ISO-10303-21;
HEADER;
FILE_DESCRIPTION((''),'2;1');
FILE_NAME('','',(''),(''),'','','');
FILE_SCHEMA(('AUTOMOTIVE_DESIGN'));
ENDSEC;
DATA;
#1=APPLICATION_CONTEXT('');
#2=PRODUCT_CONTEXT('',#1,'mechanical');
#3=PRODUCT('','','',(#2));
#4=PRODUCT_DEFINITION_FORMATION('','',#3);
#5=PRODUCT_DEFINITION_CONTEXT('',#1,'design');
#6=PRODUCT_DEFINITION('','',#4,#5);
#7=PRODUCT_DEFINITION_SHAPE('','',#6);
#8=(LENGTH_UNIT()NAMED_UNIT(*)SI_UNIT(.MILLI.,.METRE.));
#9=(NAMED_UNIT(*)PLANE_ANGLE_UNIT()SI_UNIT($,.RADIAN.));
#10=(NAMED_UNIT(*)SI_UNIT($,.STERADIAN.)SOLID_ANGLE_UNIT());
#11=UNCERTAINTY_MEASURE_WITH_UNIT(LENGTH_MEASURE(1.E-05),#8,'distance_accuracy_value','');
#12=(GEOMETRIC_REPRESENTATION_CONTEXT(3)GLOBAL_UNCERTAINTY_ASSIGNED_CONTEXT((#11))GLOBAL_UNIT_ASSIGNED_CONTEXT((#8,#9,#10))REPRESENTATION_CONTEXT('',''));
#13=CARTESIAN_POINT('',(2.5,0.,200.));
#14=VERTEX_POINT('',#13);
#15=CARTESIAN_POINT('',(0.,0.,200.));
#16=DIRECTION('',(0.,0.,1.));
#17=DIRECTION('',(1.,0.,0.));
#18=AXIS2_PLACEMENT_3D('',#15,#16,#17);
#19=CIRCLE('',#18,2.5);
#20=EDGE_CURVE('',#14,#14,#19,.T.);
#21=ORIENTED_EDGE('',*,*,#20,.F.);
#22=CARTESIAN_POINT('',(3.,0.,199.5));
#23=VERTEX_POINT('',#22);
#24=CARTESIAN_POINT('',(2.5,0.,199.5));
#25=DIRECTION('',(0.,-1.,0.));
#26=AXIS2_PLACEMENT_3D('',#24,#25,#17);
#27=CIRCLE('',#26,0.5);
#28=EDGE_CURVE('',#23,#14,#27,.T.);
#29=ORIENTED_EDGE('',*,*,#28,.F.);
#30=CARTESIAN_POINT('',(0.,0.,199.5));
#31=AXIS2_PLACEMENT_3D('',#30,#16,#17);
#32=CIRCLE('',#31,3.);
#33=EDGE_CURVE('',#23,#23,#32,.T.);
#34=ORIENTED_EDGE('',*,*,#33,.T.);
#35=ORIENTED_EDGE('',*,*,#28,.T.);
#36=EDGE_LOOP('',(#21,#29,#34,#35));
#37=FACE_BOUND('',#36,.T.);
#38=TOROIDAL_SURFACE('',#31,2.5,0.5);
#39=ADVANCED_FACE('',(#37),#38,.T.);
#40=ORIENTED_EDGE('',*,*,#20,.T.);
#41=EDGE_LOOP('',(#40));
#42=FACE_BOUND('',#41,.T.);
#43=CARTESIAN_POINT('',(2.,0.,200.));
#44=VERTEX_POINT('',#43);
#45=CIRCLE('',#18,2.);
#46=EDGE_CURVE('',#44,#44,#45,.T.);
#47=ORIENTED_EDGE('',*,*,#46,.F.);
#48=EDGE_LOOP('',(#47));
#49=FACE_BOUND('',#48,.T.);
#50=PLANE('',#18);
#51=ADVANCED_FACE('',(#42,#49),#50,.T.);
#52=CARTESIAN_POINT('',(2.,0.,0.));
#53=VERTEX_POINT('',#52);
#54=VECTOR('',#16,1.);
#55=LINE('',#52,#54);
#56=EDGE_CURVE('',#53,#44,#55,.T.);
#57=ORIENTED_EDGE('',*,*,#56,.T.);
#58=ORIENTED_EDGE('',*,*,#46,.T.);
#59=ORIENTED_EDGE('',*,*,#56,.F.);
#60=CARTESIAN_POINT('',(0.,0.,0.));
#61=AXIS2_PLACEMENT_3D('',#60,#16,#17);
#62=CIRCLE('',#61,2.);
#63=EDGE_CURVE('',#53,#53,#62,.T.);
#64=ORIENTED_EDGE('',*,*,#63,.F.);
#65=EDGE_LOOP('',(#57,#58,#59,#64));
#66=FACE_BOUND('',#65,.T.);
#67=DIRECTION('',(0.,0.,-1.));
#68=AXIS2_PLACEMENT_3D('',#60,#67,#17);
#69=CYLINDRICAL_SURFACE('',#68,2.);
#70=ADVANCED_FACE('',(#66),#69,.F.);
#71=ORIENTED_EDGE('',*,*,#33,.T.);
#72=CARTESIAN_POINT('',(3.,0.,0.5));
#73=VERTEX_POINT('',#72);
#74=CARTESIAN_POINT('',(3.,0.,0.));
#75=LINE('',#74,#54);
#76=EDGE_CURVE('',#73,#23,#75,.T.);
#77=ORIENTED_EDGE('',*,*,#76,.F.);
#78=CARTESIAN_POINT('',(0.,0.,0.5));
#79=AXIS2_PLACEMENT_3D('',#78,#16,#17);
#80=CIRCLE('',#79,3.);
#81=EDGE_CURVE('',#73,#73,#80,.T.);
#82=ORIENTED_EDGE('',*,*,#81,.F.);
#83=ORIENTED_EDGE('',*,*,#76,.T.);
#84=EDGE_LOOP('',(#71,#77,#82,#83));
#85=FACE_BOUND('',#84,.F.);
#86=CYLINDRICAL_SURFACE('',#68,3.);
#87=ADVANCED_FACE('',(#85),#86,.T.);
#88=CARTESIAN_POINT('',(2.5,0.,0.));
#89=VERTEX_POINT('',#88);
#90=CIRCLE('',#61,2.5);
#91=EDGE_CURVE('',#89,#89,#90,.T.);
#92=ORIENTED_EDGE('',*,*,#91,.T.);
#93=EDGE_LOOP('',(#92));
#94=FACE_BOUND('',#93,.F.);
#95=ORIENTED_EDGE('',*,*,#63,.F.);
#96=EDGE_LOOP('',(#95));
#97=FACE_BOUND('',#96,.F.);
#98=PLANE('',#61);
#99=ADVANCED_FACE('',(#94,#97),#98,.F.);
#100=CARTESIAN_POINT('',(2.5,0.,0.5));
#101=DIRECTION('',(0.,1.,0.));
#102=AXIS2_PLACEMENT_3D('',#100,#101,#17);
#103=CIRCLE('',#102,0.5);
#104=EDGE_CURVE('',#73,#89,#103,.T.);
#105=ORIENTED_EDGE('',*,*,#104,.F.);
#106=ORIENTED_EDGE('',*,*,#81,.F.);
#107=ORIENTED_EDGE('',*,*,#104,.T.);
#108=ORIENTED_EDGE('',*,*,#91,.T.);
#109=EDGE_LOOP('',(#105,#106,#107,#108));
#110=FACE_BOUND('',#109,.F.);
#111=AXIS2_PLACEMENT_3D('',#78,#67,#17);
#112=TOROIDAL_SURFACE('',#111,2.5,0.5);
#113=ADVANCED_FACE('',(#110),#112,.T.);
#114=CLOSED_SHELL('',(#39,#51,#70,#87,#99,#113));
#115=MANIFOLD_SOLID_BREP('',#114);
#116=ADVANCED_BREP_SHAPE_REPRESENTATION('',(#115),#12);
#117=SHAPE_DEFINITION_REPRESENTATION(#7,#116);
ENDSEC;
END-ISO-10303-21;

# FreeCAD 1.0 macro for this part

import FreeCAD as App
import Part
import Sketcher
from FreeCAD import Vector
Q = App.Units.Quantity


def edges_at(feature, points):
    """Names of the edges that pass closest to the given points."""
    edges = feature.Shape.Edges
    near = lambda p: min(range(len(edges)), key=lambda i: edges[i].distToShape(Part.Vertex(*p))[0])
    return sorted({f"Edge{near(p) + 1}" for p in points})

doc = App.newDocument("Part")
params = doc.addObject("Spreadsheet::Sheet", "Params")
for row, (alias, value) in enumerate([
    ("sketch1_diameter", "6 mm"),
    ("sketch1_diameter2", "4 mm"),
    ("pad1_length", "200 mm"),
    ("fillet_radius", "0.5 mm"),
], start=1):
    params.set(f"A{row}", alias)
    params.set(f"B{row}", "=" + value)
    params.setAlias(f"B{row}", alias)

body = doc.addObject("PartDesign::Body", "Body")

# Sketch on XY plane
sketch1 = doc.addObject("Sketcher::SketchObject", "Sketch")
body.addObject(sketch1)
sketch1.AttachmentSupport = (doc.XY_Plane, [""])
sketch1.MapMode = "FlatFace"
sketch1.addGeometry([
    Part.Circle(Vector(0, 0, 0), Vector(0, 0, 1), 3),
    Part.Circle(Vector(0, 0, 0), Vector(0, 0, 1), 2),
], False)
sketch1.addConstraint([
    Sketcher.Constraint("Coincident", 0, 3, -1, 1),
    Sketcher.Constraint("Coincident", 1, 3, -1, 1),
    Sketcher.Constraint("Diameter", 0, Q("6 mm")),
    Sketcher.Constraint("Diameter", 1, Q("4 mm")),
])
sketch1.setExpression("Constraints[2]", "Params.sketch1_diameter")
sketch1.setExpression("Constraints[3]", "Params.sketch1_diameter2")
pad1 = doc.addObject("PartDesign::Pad", "Pad")
body.addObject(pad1)
pad1.Profile = sketch1
pad1.setExpression("Length", "Params.pad1_length")
doc.recompute()

fillet = doc.addObject("PartDesign::Fillet", "Fillet")
body.addObject(fillet)
fillet.Base = (pad1, edges_at(pad1, [(-3, 0, 0), (-3, 0, 200)]))
fillet.setExpression("Radius", "Params.fillet_radius")

doc.recompute()
